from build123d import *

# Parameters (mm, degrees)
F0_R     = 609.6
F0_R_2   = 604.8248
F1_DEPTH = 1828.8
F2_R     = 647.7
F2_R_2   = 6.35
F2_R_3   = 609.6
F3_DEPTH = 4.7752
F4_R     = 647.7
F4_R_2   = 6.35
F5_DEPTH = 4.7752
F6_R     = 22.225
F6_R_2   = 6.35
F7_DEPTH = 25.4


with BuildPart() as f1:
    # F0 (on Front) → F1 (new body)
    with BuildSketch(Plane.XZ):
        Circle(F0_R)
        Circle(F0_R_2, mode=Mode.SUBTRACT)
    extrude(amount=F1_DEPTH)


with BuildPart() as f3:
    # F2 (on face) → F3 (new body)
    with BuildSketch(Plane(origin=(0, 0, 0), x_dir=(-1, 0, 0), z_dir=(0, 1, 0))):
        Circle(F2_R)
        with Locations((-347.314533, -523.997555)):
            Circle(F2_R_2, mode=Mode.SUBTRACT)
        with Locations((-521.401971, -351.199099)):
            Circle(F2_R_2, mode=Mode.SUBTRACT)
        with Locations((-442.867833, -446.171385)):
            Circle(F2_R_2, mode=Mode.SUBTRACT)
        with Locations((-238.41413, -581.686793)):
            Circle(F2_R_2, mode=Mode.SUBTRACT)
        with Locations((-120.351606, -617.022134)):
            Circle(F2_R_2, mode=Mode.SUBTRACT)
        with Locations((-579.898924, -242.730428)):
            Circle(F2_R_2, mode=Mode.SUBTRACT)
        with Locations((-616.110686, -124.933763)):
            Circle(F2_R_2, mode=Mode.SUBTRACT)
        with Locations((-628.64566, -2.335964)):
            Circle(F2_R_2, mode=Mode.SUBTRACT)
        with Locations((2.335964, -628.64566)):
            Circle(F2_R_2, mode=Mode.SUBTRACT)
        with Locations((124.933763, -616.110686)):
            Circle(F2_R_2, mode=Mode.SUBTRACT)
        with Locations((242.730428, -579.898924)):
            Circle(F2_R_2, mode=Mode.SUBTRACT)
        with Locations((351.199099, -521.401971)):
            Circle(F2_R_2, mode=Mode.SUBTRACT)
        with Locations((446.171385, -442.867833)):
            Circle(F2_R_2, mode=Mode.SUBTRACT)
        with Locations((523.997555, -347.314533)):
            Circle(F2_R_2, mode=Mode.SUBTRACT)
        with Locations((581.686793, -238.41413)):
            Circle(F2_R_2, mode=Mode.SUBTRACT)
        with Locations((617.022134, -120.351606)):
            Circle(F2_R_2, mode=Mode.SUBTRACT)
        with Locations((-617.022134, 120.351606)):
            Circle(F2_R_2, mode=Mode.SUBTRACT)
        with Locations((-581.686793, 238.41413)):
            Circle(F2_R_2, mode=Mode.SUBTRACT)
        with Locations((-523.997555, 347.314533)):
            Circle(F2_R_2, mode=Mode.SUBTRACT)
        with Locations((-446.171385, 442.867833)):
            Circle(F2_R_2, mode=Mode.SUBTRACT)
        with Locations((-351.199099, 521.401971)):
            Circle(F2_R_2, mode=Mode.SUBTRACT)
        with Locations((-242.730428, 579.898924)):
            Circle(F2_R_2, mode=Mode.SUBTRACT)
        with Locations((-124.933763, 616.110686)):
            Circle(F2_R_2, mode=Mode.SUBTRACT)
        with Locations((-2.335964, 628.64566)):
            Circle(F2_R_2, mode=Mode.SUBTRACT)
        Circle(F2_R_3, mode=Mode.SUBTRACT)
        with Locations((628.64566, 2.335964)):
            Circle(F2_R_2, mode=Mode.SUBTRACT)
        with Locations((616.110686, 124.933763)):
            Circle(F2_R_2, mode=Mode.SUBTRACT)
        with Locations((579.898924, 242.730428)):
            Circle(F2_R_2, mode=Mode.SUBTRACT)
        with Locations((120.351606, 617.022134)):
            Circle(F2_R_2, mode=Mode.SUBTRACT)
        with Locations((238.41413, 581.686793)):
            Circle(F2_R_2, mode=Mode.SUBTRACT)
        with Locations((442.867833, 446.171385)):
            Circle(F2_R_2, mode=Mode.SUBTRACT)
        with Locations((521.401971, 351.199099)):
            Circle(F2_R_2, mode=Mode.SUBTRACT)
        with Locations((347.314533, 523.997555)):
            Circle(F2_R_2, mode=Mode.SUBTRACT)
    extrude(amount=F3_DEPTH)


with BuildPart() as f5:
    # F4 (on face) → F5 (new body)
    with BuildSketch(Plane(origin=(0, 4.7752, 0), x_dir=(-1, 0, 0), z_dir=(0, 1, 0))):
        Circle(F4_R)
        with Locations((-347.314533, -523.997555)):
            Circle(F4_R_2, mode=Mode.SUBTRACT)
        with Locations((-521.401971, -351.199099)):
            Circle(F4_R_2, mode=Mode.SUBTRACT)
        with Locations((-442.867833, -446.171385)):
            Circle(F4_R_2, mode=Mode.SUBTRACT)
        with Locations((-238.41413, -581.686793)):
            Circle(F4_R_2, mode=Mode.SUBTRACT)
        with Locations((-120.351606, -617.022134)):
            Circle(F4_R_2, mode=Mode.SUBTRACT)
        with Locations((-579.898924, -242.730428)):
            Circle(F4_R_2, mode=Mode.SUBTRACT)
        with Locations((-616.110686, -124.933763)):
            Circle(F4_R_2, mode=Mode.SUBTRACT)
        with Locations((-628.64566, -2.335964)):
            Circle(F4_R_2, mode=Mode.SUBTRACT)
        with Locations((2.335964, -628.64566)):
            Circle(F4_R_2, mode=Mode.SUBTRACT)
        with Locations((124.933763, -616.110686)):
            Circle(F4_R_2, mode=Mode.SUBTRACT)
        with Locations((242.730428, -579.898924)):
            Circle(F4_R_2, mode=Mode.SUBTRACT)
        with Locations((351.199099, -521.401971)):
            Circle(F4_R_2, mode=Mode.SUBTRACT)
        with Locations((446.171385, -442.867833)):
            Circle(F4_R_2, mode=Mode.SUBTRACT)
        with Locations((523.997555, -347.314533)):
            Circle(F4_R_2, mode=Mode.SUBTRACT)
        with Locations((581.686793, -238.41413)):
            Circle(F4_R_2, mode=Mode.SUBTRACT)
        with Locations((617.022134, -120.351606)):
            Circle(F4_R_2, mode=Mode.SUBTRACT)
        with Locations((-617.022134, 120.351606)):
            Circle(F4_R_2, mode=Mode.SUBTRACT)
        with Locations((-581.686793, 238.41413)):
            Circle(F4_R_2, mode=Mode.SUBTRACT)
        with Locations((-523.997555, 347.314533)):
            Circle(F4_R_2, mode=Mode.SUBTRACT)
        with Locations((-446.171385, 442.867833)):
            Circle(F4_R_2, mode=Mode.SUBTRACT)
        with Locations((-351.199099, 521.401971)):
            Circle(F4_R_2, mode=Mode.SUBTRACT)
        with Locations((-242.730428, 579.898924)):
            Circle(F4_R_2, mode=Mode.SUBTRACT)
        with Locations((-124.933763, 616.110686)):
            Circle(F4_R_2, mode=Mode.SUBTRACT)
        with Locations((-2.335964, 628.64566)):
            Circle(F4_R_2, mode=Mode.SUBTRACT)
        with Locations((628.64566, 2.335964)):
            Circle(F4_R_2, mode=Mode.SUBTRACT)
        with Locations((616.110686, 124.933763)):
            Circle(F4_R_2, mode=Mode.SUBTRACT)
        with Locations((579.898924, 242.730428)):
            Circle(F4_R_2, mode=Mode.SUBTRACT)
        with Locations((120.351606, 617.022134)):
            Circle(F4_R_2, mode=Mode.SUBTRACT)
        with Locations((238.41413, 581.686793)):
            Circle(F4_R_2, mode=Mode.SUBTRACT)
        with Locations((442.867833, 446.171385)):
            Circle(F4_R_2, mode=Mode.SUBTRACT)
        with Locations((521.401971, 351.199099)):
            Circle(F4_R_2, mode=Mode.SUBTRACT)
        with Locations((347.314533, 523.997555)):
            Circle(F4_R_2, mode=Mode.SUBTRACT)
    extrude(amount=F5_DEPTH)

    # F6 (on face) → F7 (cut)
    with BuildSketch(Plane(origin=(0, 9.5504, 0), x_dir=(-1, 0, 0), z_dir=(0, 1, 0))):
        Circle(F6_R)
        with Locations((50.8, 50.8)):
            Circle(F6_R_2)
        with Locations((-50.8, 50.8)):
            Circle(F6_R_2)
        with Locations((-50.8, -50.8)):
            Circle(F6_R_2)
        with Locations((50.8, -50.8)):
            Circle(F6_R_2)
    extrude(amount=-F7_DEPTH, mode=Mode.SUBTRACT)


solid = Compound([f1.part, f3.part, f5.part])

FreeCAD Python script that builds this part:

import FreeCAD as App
import Part
import Sketcher
Q = App.Units.Quantity

doc = App.newDocument("Part")
params = doc.addObject("Spreadsheet::Sheet", "Params")
for row, (alias, value) in enumerate([
    ("sketch1_diameter", "48 in"),
    ("sketch1_diameter2", "47.624 in"),
    ("pad1_length", "72 in"),
    ("sketch2_diameter", "51 in"),
    ("sketch2_diameter2", "48 in"),
    ("sketch2_diameter3", "0.5 in"),
    ("pad2_length", "0.188 in"),
    ("sketch3_diameter", "51 in"),
    ("sketch3_diameter2", "0.5 in"),
    ("pad3_length", "0.188 in"),
    ("sketch4_diameter", "0.5 in"),
    ("sketch4_diameter2", "1.75 in"),
    ("pocket1_length", "1 in"),
], start=1):
    params.set(f"A{row}", alias)
    params.set(f"B{row}", "=" + value)
    params.setAlias(f"B{row}", alias)

body = doc.addObject("PartDesign::Body", "Body")

# Sketch on XZ plane
sketch1 = body.newObject("Sketcher::SketchObject", "Sketch")
sketch1.AttachmentSupport = (doc.getObject("XZ_Plane"), [""])
sketch1.MapMode = "FlatFace"
sketch1.addGeometry([
    Part.Circle(App.Vector(0, 0, 0), App.Vector(0, 0, 1), 610),
    Part.Circle(App.Vector(0, 0, 0), App.Vector(0, 0, 1), 605),
], False)
sketch1.addConstraint([
    Sketcher.Constraint("Coincident", 0, 3, -1, 1),
    Sketcher.Constraint("Coincident", 1, 3, -1, 1),
    Sketcher.Constraint("Diameter", 0, Q("48 in")),
    Sketcher.Constraint("Diameter", 1, Q("47.624 in")),
])
sketch1.setExpression("Constraints[2]", "Params.sketch1_diameter")
sketch1.setExpression("Constraints[3]", "Params.sketch1_diameter2")
pad1 = body.newObject("PartDesign::Pad", "Pad")
pad1.Profile = sketch1
pad1.setExpression("Length", "Params.pad1_length")
body2 = doc.addObject("PartDesign::Body", "Body001")

# Sketch on XZ plane
sketch2 = body2.newObject("Sketcher::SketchObject", "Sketch001")
sketch2.AttachmentSupport = (doc.getObject("XZ_Plane001"), [""])
sketch2.MapMode = "FlatFace"
sketch2.addGeometry([
    Part.Circle(App.Vector(0, 0, 0), App.Vector(0, 0, 1), 648),  # 0
    Part.Circle(App.Vector(347, -524, 0), App.Vector(0, 0, 1), 6),  # 1
    Part.Circle(App.Vector(521, -351, 0), App.Vector(0, 0, 1), 6),  # 2
    Part.Circle(App.Vector(443, -446, 0), App.Vector(0, 0, 1), 6),  # 3
    Part.Circle(App.Vector(238, -582, 0), App.Vector(0, 0, 1), 6),  # 4
    Part.Circle(App.Vector(120, -617, 0), App.Vector(0, 0, 1), 6),  # 5
    Part.Circle(App.Vector(580, -243, 0), App.Vector(0, 0, 1), 6),  # 6
    Part.Circle(App.Vector(616, -125, 0), App.Vector(0, 0, 1), 6),  # 7
    Part.Circle(App.Vector(629, -2, 0), App.Vector(0, 0, 1), 6),  # 8
    Part.Circle(App.Vector(-2, -629, 0), App.Vector(0, 0, 1), 6),  # 9
    Part.Circle(App.Vector(-125, -616, 0), App.Vector(0, 0, 1), 6),  # 10
    Part.Circle(App.Vector(-243, -580, 0), App.Vector(0, 0, 1), 6),  # 11
    Part.Circle(App.Vector(-351, -521, 0), App.Vector(0, 0, 1), 6),  # 12
    Part.Circle(App.Vector(-446, -443, 0), App.Vector(0, 0, 1), 6),  # 13
    Part.Circle(App.Vector(-524, -347, 0), App.Vector(0, 0, 1), 6),  # 14
    Part.Circle(App.Vector(-582, -238, 0), App.Vector(0, 0, 1), 6),  # 15
    Part.Circle(App.Vector(-617, -120, 0), App.Vector(0, 0, 1), 6),  # 16
    Part.Circle(App.Vector(617, 120, 0), App.Vector(0, 0, 1), 6),  # 17
    Part.Circle(App.Vector(582, 238, 0), App.Vector(0, 0, 1), 6),  # 18
    Part.Circle(App.Vector(524, 347, 0), App.Vector(0, 0, 1), 6),  # 19
    Part.Circle(App.Vector(446, 443, 0), App.Vector(0, 0, 1), 6),  # 20
    Part.Circle(App.Vector(351, 521, 0), App.Vector(0, 0, 1), 6),  # 21
    Part.Circle(App.Vector(243, 580, 0), App.Vector(0, 0, 1), 6),  # 22
    Part.Circle(App.Vector(125, 616, 0), App.Vector(0, 0, 1), 6),  # 23
    Part.Circle(App.Vector(2, 629, 0), App.Vector(0, 0, 1), 6),  # 24
    Part.Circle(App.Vector(0, 0, 0), App.Vector(0, 0, 1), 610),  # 25
    Part.Circle(App.Vector(-629, 2, 0), App.Vector(0, 0, 1), 6),  # 26
    Part.Circle(App.Vector(-616, 125, 0), App.Vector(0, 0, 1), 6),  # 27
    Part.Circle(App.Vector(-580, 243, 0), App.Vector(0, 0, 1), 6),  # 28
    Part.Circle(App.Vector(-120, 617, 0), App.Vector(0, 0, 1), 6),  # 29
    Part.Circle(App.Vector(-238, 582, 0), App.Vector(0, 0, 1), 6),  # 30
    Part.Circle(App.Vector(-443, 446, 0), App.Vector(0, 0, 1), 6),  # 31
    Part.Circle(App.Vector(-521, 351, 0), App.Vector(0, 0, 1), 6),  # 32
    Part.Circle(App.Vector(-347, 524, 0), App.Vector(0, 0, 1), 6),  # 33
], False)
sketch2.addConstraint([
    Sketcher.Constraint("Coincident", 0, 3, -1, 1),
    Sketcher.Constraint("Coincident", 25, 3, -1, 1),
    Sketcher.Constraint("Equal", 1, 2),
    Sketcher.Constraint("Equal", 2, 3),
    Sketcher.Constraint("Equal", 3, 4),
    Sketcher.Constraint("Equal", 4, 5),
    Sketcher.Constraint("Equal", 5, 6),
    Sketcher.Constraint("Equal", 6, 7),
    Sketcher.Constraint("Equal", 7, 8),
    Sketcher.Constraint("Equal", 8, 9),
    Sketcher.Constraint("Equal", 9, 10),
    Sketcher.Constraint("Equal", 10, 11),
    Sketcher.Constraint("Equal", 11, 12),
    Sketcher.Constraint("Equal", 12, 13),
    Sketcher.Constraint("Equal", 13, 14),
    Sketcher.Constraint("Equal", 14, 15),
    Sketcher.Constraint("Equal", 15, 16),
    Sketcher.Constraint("Equal", 16, 17),
    Sketcher.Constraint("Equal", 17, 18),
    Sketcher.Constraint("Equal", 18, 19),
    Sketcher.Constraint("Equal", 19, 20),
    Sketcher.Constraint("Equal", 20, 21),
    Sketcher.Constraint("Equal", 21, 22),
    Sketcher.Constraint("Equal", 22, 23),
    Sketcher.Constraint("Equal", 23, 24),
    Sketcher.Constraint("Equal", 24, 26),
    Sketcher.Constraint("Equal", 26, 27),
    Sketcher.Constraint("Equal", 27, 28),
    Sketcher.Constraint("Equal", 28, 29),
    Sketcher.Constraint("Equal", 29, 30),
    Sketcher.Constraint("Equal", 30, 31),
    Sketcher.Constraint("Equal", 31, 32),
    Sketcher.Constraint("Equal", 32, 33),
    Sketcher.Constraint("Symmetric", 16, 3, 17, 3, -1, 1),
    Sketcher.Constraint("Symmetric", 15, 3, 18, 3, -1, 1),
    Sketcher.Constraint("Symmetric", 14, 3, 19, 3, -1, 1),
    Sketcher.Constraint("Symmetric", 13, 3, 20, 3, -1, 1),
    Sketcher.Constraint("Symmetric", 12, 3, 21, 3, -1, 1),
    Sketcher.Constraint("Symmetric", 11, 3, 22, 3, -1, 1),
    Sketcher.Constraint("Symmetric", 10, 3, 23, 3, -1, 1),
    Sketcher.Constraint("Symmetric", 9, 3, 24, 3, -1, 1),
    Sketcher.Constraint("Symmetric", 8, 3, 26, 3, -1, 1),
    Sketcher.Constraint("Symmetric", 7, 3, 27, 3, -1, 1),
    Sketcher.Constraint("Symmetric", 6, 3, 28, 3, -1, 1),
    Sketcher.Constraint("Symmetric", 5, 3, 29, 3, -1, 1),
    Sketcher.Constraint("Symmetric", 4, 3, 30, 3, -1, 1),
    Sketcher.Constraint("Symmetric", 3, 3, 31, 3, -1, 1),
    Sketcher.Constraint("Symmetric", 2, 3, 32, 3, -1, 1),
    Sketcher.Constraint("Symmetric", 1, 3, 33, 3, -1, 1),
    Sketcher.Constraint("Diameter", 0, Q("51 in")),
    Sketcher.Constraint("Diameter", 25, Q("48 in")),
    Sketcher.Constraint("Diameter", 1, Q("0.5 in")),
    Sketcher.Constraint("DistanceY", 2, 3, -1, 1, 351.199099),
    Sketcher.Constraint("DistanceX", 12, 3, -1, 1, 351.199099),
    Sketcher.Constraint("DistanceX", 1, 3, 3, 3, 95.5533),
    Sketcher.Constraint("DistanceY", 7, 3, 8, 3, 122.597799),
    Sketcher.Constraint("DistanceX", 10, 3, 9, 3, 122.597799),
    Sketcher.Constraint("DistanceY", 10, 3, 3, 3, 169.939301),
    Sketcher.Constraint("DistanceY", 5, 3, 13, 3, 174.154301),
    Sketcher.Constraint("DistanceY", 13, 3, 14, 3, 95.5533),
    Sketcher.Constraint("DistanceX", 3, 3, 17, 3, 174.154301),
    Sketcher.Constraint("DistanceX", 20, 3, 7, 3, 169.939301),
    Sketcher.Constraint("DistanceX", -1, 1, 2, 3, 521.401971),
    Sketcher.Constraint("DistanceX", -1, 1, 4, 3, 238.41413),
    Sketcher.Constraint("DistanceX", -1, 1, 8, 3, 628.64566),
    Sketcher.Constraint("DistanceY", 9, 3, -1, 1, 628.64566),
    Sketcher.Constraint("DistanceY", 12, 3, -1, 1, 521.401971),
    Sketcher.Constraint("DistanceY", 15, 3, -1, 1, 238.41413),
    Sketcher.Constraint("DistanceX", 1, 3, 2, 3, 174.087438),
    Sketcher.Constraint("DistanceY", 1, 3, 3, 3, 77.82617),
    Sketcher.Constraint("DistanceY", 5, 3, 4, 3, 35.335341),
    Sketcher.Constraint("DistanceY", 5, 3, 1, 3, 93.024579),
    Sketcher.Constraint("DistanceY", 2, 3, 6, 3, 108.468671),
    Sketcher.Constraint("DistanceX", 3, 3, 6, 3, 137.031091),
    Sketcher.Constraint("DistanceY", 3, 3, 7, 3, 321.237622),
    Sketcher.Constraint("DistanceX", 9, 3, 5, 3, 122.68757),
    Sketcher.Constraint("DistanceY", 5, 3, 11, 3, 37.12321),
    Sketcher.Constraint("DistanceX", 11, 3, 1, 3, 590.044961),
    Sketcher.Constraint("DistanceY", 4, 3, 12, 3, 60.284822),
    Sketcher.Constraint("DistanceX", 13, 3, 10, 3, 321.237622),
    Sketcher.Constraint("DistanceX", 14, 3, 13, 3, 77.82617),
    Sketcher.Constraint("DistanceX", 15, 3, 10, 3, 456.75303),
    Sketcher.Constraint("DistanceX", 16, 3, 15, 3, 35.335341),
    Sketcher.Constraint("DistanceY", 8, 3, 17, 3, 122.68757),
])
sketch2.setExpression("Constraints[49]", "Params.sketch2_diameter")
sketch2.setExpression("Constraints[50]", "Params.sketch2_diameter2")
sketch2.setExpression("Constraints[51]", "Params.sketch2_diameter3")
pad2 = body2.newObject("PartDesign::Pad", "Pad001")
pad2.Profile = sketch2
pad2.setExpression("Length", "Params.pad2_length")
pad2.Reversed = True
body3 = doc.addObject("PartDesign::Body", "Body002")

# Sketch on XZ plane
sketch3 = body3.newObject("Sketcher::SketchObject", "Sketch002")
sketch3.AttachmentSupport = (doc.getObject("XZ_Plane002"), [""])
sketch3.MapMode = "FlatFace"
sketch3.AttachmentOffset = App.Placement(App.Vector(0, 0, -0.188 * 25.4), App.Rotation())
sketch3.addGeometry([
    Part.Circle(App.Vector(0, 0, 0), App.Vector(0, 0, 1), 648),  # 0
    Part.Circle(App.Vector(347, -524, 0), App.Vector(0, 0, 1), 6),  # 1
    Part.Circle(App.Vector(521, -351, 0), App.Vector(0, 0, 1), 6),  # 2
    Part.Circle(App.Vector(443, -446, 0), App.Vector(0, 0, 1), 6),  # 3
    Part.Circle(App.Vector(238, -582, 0), App.Vector(0, 0, 1), 6),  # 4
    Part.Circle(App.Vector(120, -617, 0), App.Vector(0, 0, 1), 6),  # 5
    Part.Circle(App.Vector(580, -243, 0), App.Vector(0, 0, 1), 6),  # 6
    Part.Circle(App.Vector(616, -125, 0), App.Vector(0, 0, 1), 6),  # 7
    Part.Circle(App.Vector(629, -2, 0), App.Vector(0, 0, 1), 6),  # 8
    Part.Circle(App.Vector(-2, -629, 0), App.Vector(0, 0, 1), 6),  # 9
    Part.Circle(App.Vector(-125, -616, 0), App.Vector(0, 0, 1), 6),  # 10
    Part.Circle(App.Vector(-243, -580, 0), App.Vector(0, 0, 1), 6),  # 11
    Part.Circle(App.Vector(-351, -521, 0), App.Vector(0, 0, 1), 6),  # 12
    Part.Circle(App.Vector(-446, -443, 0), App.Vector(0, 0, 1), 6),  # 13
    Part.Circle(App.Vector(-524, -347, 0), App.Vector(0, 0, 1), 6),  # 14
    Part.Circle(App.Vector(-582, -238, 0), App.Vector(0, 0, 1), 6),  # 15
    Part.Circle(App.Vector(-617, -120, 0), App.Vector(0, 0, 1), 6),  # 16
    Part.Circle(App.Vector(617, 120, 0), App.Vector(0, 0, 1), 6),  # 17
    Part.Circle(App.Vector(582, 238, 0), App.Vector(0, 0, 1), 6),  # 18
    Part.Circle(App.Vector(524, 347, 0), App.Vector(0, 0, 1), 6),  # 19
    Part.Circle(App.Vector(446, 443, 0), App.Vector(0, 0, 1), 6),  # 20
    Part.Circle(App.Vector(351, 521, 0), App.Vector(0, 0, 1), 6),  # 21
    Part.Circle(App.Vector(243, 580, 0), App.Vector(0, 0, 1), 6),  # 22
    Part.Circle(App.Vector(125, 616, 0), App.Vector(0, 0, 1), 6),  # 23
    Part.Circle(App.Vector(2, 629, 0), App.Vector(0, 0, 1), 6),  # 24
    Part.Circle(App.Vector(-629, 2, 0), App.Vector(0, 0, 1), 6),  # 25
    Part.Circle(App.Vector(-616, 125, 0), App.Vector(0, 0, 1), 6),  # 26
    Part.Circle(App.Vector(-580, 243, 0), App.Vector(0, 0, 1), 6),  # 27
    Part.Circle(App.Vector(-120, 617, 0), App.Vector(0, 0, 1), 6),  # 28
    Part.Circle(App.Vector(-238, 582, 0), App.Vector(0, 0, 1), 6),  # 29
    Part.Circle(App.Vector(-443, 446, 0), App.Vector(0, 0, 1), 6),  # 30
    Part.Circle(App.Vector(-521, 351, 0), App.Vector(0, 0, 1), 6),  # 31
    Part.Circle(App.Vector(-347, 524, 0), App.Vector(0, 0, 1), 6),  # 32
], False)
sketch3.addConstraint([
    Sketcher.Constraint("Coincident", 0, 3, -1, 1),
    Sketcher.Constraint("Equal", 1, 2),
    Sketcher.Constraint("Equal", 2, 3),
    Sketcher.Constraint("Equal", 3, 4),
    Sketcher.Constraint("Equal", 4, 5),
    Sketcher.Constraint("Equal", 5, 6),
    Sketcher.Constraint("Equal", 6, 7),
    Sketcher.Constraint("Equal", 7, 8),
    Sketcher.Constraint("Equal", 8, 9),
    Sketcher.Constraint("Equal", 9, 10),
    Sketcher.Constraint("Equal", 10, 11),
    Sketcher.Constraint("Equal", 11, 12),
    Sketcher.Constraint("Equal", 12, 13),
    Sketcher.Constraint("Equal", 13, 14),
    Sketcher.Constraint("Equal", 14, 15),
    Sketcher.Constraint("Equal", 15, 16),
    Sketcher.Constraint("Equal", 16, 17),
    Sketcher.Constraint("Equal", 17, 18),
    Sketcher.Constraint("Equal", 18, 19),
    Sketcher.Constraint("Equal", 19, 20),
    Sketcher.Constraint("Equal", 20, 21),
    Sketcher.Constraint("Equal", 21, 22),
    Sketcher.Constraint("Equal", 22, 23),
    Sketcher.Constraint("Equal", 23, 24),
    Sketcher.Constraint("Equal", 24, 25),
    Sketcher.Constraint("Equal", 25, 26),
    Sketcher.Constraint("Equal", 26, 27),
    Sketcher.Constraint("Equal", 27, 28),
    Sketcher.Constraint("Equal", 28, 29),
    Sketcher.Constraint("Equal", 29, 30),
    Sketcher.Constraint("Equal", 30, 31),
    Sketcher.Constraint("Equal", 31, 32),
    Sketcher.Constraint("Symmetric", 16, 3, 17, 3, -1, 1),
    Sketcher.Constraint("Symmetric", 15, 3, 18, 3, -1, 1),
    Sketcher.Constraint("Symmetric", 14, 3, 19, 3, -1, 1),
    Sketcher.Constraint("Symmetric", 13, 3, 20, 3, -1, 1),
    Sketcher.Constraint("Symmetric", 12, 3, 21, 3, -1, 1),
    Sketcher.Constraint("Symmetric", 11, 3, 22, 3, -1, 1),
    Sketcher.Constraint("Symmetric", 10, 3, 23, 3, -1, 1),
    Sketcher.Constraint("Symmetric", 9, 3, 24, 3, -1, 1),
    Sketcher.Constraint("Symmetric", 8, 3, 25, 3, -1, 1),
    Sketcher.Constraint("Symmetric", 7, 3, 26, 3, -1, 1),
    Sketcher.Constraint("Symmetric", 6, 3, 27, 3, -1, 1),
    Sketcher.Constraint("Symmetric", 5, 3, 28, 3, -1, 1),
    Sketcher.Constraint("Symmetric", 4, 3, 29, 3, -1, 1),
    Sketcher.Constraint("Symmetric", 3, 3, 30, 3, -1, 1),
    Sketcher.Constraint("Symmetric", 2, 3, 31, 3, -1, 1),
    Sketcher.Constraint("Symmetric", 1, 3, 32, 3, -1, 1),
    Sketcher.Constraint("Diameter", 0, Q("51 in")),
    Sketcher.Constraint("Diameter", 1, Q("0.5 in")),
    Sketcher.Constraint("DistanceY", 2, 3, -1, 1, 351.199099),
    Sketcher.Constraint("DistanceX", 12, 3, -1, 1, 351.199099),
    Sketcher.Constraint("DistanceX", 1, 3, 3, 3, 95.5533),
    Sketcher.Constraint("DistanceY", 7, 3, 8, 3, 122.597799),
    Sketcher.Constraint("DistanceX", 10, 3, 9, 3, 122.597799),
    Sketcher.Constraint("DistanceY", 10, 3, 3, 3, 169.939301),
    Sketcher.Constraint("DistanceY", 5, 3, 13, 3, 174.154301),
    Sketcher.Constraint("DistanceY", 13, 3, 14, 3, 95.5533),
    Sketcher.Constraint("DistanceX", 3, 3, 17, 3, 174.154301),
    Sketcher.Constraint("DistanceX", 20, 3, 7, 3, 169.939301),
    Sketcher.Constraint("DistanceX", -1, 1, 2, 3, 521.401971),
    Sketcher.Constraint("DistanceX", -1, 1, 4, 3, 238.41413),
    Sketcher.Constraint("DistanceX", -1, 1, 8, 3, 628.64566),
    Sketcher.Constraint("DistanceY", 9, 3, -1, 1, 628.64566),
    Sketcher.Constraint("DistanceY", 12, 3, -1, 1, 521.401971),
    Sketcher.Constraint("DistanceY", 15, 3, -1, 1, 238.41413),
    Sketcher.Constraint("DistanceX", 1, 3, 2, 3, 174.087438),
    Sketcher.Constraint("DistanceY", 1, 3, 3, 3, 77.82617),
    Sketcher.Constraint("DistanceY", 5, 3, 4, 3, 35.335341),
    Sketcher.Constraint("DistanceY", 5, 3, 1, 3, 93.024579),
    Sketcher.Constraint("DistanceY", 2, 3, 6, 3, 108.468671),
    Sketcher.Constraint("DistanceX", 3, 3, 6, 3, 137.031091),
    Sketcher.Constraint("DistanceY", 3, 3, 7, 3, 321.237622),
    Sketcher.Constraint("DistanceX", 9, 3, 5, 3, 122.68757),
    Sketcher.Constraint("DistanceY", 5, 3, 11, 3, 37.12321),
    Sketcher.Constraint("DistanceX", 11, 3, 1, 3, 590.044961),
    Sketcher.Constraint("DistanceY", 4, 3, 12, 3, 60.284822),
    Sketcher.Constraint("DistanceX", 13, 3, 10, 3, 321.237622),
    Sketcher.Constraint("DistanceX", 14, 3, 13, 3, 77.82617),
    Sketcher.Constraint("DistanceX", 15, 3, 10, 3, 456.75303),
    Sketcher.Constraint("DistanceX", 16, 3, 15, 3, 35.335341),
    Sketcher.Constraint("DistanceY", 8, 3, 17, 3, 122.68757),
])
sketch3.setExpression("Constraints[48]", "Params.sketch3_diameter")
sketch3.setExpression("Constraints[49]", "Params.sketch3_diameter2")
pad3 = body3.newObject("PartDesign::Pad", "Pad002")
pad3.Profile = sketch3
pad3.setExpression("Length", "Params.pad3_length")
pad3.Reversed = True

# Sketch on XZ plane
sketch4 = body3.newObject("Sketcher::SketchObject", "Sketch003")
sketch4.AttachmentSupport = (doc.getObject("XZ_Plane002"), [""])
sketch4.MapMode = "FlatFace"
sketch4.AttachmentOffset = App.Placement(App.Vector(0, 0, -0.376 * 25.4), App.Rotation())
sketch4.addGeometry([
    Part.Circle(App.Vector(0, 0, 0), App.Vector(0, 0, 1), 22),  # 0
    Part.Circle(App.Vector(-51, 51, 0), App.Vector(0, 0, 1), 6),  # 1
    Part.Circle(App.Vector(51, 51, 0), App.Vector(0, 0, 1), 6),  # 2
    Part.Circle(App.Vector(51, -51, 0), App.Vector(0, 0, 1), 6),  # 3
    Part.Circle(App.Vector(-51, -51, 0), App.Vector(0, 0, 1), 6),  # 4
], False)
sketch4.addConstraint([
    Sketcher.Constraint("Coincident", 0, 3, -1, 1),
    Sketcher.Constraint("Equal", 1, 2),
    Sketcher.Constraint("Equal", 2, 3),
    Sketcher.Constraint("Equal", 3, 4),
    Sketcher.Constraint("Symmetric", 1, 3, 3, 3, -1, 1),
    Sketcher.Constraint("Symmetric", 2, 3, 4, 3, -1, 1),
    Sketcher.Constraint("Symmetric", 1, 3, 2, 3, -2),
    Sketcher.Constraint("Diameter", 1, Q("0.5 in")),
    Sketcher.Constraint("Diameter", 0, Q("1.75 in")),
    Sketcher.Constraint("DistanceX", 1, 3, -1, 1, Q("2 in")),
    Sketcher.Constraint("DistanceY", -1, 1, 1, 3, Q("2 in")),
])
sketch4.setExpression("Constraints[7]", "Params.sketch4_diameter")
sketch4.setExpression("Constraints[8]", "Params.sketch4_diameter2")
pocket1 = body3.newObject("PartDesign::Pocket", "Pocket")
pocket1.Profile = sketch4
pocket1.setExpression("Length", "Params.pocket1_length")
pocket1.Reversed = True

doc.recompute()
